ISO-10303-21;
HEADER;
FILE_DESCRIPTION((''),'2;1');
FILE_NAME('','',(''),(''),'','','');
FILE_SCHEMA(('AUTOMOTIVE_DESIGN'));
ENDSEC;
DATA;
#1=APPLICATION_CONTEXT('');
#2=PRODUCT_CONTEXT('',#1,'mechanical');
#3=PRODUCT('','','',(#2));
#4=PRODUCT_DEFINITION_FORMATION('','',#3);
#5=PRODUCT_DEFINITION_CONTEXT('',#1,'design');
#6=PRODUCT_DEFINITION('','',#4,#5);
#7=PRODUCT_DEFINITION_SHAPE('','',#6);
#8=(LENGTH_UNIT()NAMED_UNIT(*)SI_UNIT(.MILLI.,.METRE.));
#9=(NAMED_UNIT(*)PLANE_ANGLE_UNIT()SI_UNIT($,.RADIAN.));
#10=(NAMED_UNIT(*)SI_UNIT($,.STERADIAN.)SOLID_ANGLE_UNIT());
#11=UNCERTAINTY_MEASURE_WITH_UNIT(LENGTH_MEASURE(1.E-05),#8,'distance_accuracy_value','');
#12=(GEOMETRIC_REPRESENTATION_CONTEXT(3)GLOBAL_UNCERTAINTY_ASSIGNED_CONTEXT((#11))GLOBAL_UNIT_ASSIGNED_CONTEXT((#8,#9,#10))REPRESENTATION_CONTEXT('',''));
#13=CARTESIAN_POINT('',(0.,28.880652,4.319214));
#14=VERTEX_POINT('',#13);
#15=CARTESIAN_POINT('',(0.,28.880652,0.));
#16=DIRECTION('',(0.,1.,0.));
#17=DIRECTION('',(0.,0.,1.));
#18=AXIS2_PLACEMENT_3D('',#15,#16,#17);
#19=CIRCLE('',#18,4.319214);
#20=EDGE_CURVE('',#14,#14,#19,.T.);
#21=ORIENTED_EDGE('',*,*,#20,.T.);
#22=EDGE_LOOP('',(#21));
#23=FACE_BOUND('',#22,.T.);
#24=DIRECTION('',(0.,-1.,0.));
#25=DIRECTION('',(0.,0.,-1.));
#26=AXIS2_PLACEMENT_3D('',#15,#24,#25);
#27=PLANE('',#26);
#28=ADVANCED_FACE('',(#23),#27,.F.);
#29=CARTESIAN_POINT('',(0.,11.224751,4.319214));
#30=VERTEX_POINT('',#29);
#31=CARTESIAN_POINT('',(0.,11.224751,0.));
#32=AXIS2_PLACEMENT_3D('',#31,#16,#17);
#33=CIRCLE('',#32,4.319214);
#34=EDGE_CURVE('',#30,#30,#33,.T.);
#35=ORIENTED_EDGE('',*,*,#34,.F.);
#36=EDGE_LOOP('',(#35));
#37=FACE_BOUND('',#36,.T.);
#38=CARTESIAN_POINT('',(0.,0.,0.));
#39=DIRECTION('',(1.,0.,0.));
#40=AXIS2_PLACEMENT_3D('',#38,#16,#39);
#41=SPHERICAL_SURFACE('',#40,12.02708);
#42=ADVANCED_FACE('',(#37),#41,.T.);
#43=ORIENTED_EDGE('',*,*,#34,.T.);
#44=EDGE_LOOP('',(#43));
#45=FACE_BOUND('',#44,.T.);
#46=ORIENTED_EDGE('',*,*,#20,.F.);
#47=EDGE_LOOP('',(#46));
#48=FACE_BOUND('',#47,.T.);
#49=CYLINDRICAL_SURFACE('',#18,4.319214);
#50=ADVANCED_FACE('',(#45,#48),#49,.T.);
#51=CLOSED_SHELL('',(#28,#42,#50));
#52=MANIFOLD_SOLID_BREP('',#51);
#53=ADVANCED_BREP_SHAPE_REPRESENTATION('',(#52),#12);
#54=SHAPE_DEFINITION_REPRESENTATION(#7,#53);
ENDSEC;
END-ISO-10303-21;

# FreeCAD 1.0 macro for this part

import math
import FreeCAD as App
import Part
import Sketcher

V = App.Vector

doc = App.newDocument("Part")
body = doc.addObject("PartDesign::Body", "Body")

sketch1 = body.newObject("Sketcher::SketchObject", "Sketch")
sketch1.AttachmentSupport = (doc.getObject("XY_Plane"), [""])
sketch1.MapMode = "FlatFace"
sketch1.addGeometry(Part.LineSegment(V(0, 28.9, 0), V(0, -12, 0)), False)
sketch1.addGeometry(Part.ArcOfCircle(Part.Circle(V(0, 0, 0), V(0, 0, 1), 12), math.radians(-90), math.radians(69)), False)
sketch1.addGeometry(Part.LineSegment(V(4.3, 11.2, 0), V(4.3, 28.9, 0)), False)
sketch1.addGeometry(Part.LineSegment(V(4.3, 28.9, 0), V(0, 28.9, 0)), False)
sketch1.addConstraint(Sketcher.Constraint("Coincident", 0, 2, 1, 1))
sketch1.addConstraint(Sketcher.Constraint("Coincident", 1, 2, 2, 1))
sketch1.addConstraint(Sketcher.Constraint("Coincident", 2, 2, 3, 1))
sketch1.addConstraint(Sketcher.Constraint("Coincident", 3, 2, 0, 1))
sketch1.addConstraint(Sketcher.Constraint("Vertical", 0))
sketch1.addConstraint(Sketcher.Constraint("Vertical", 2))
sketch1.addConstraint(Sketcher.Constraint("Horizontal", 3))
sketch1.addConstraint(Sketcher.Constraint("Coincident", 1, 3, -1, 1))
sketch1.addConstraint(Sketcher.Constraint("PointOnObject", 0, 2, -2))
sketch1.addConstraint(Sketcher.Constraint("Radius", 1, 12.02708))
sketch1.addConstraint(Sketcher.Constraint("DistanceY", 2, 1, 2, 2, 17.655901))
sketch1.addConstraint(Sketcher.Constraint("DistanceX", 3, 2, 3, 1, 4.319214))
revolution = body.newObject("PartDesign::Revolution", "Revolution")
revolution.Profile = sketch1
revolution.ReferenceAxis = (sketch1, ["V_Axis"])
revolution.Angle = 360

doc.recompute()
